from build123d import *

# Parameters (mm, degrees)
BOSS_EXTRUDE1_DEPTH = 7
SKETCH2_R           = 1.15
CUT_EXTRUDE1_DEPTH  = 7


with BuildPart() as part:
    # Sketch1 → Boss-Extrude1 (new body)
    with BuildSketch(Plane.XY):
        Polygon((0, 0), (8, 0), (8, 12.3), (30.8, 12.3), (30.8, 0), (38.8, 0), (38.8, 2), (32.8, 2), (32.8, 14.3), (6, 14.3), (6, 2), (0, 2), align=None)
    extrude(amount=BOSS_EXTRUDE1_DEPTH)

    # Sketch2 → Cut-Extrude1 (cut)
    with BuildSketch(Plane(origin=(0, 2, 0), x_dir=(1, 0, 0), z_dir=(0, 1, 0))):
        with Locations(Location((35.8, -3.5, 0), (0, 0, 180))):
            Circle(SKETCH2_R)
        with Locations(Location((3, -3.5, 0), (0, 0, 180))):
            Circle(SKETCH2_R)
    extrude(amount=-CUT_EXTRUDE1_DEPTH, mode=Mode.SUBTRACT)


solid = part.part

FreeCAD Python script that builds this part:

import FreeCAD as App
import Part
import Sketcher
Q = App.Units.Quantity


def add_polygon(sketch, points):
    """Adds a closed chain of lines whose ends are joined by coincident constraints."""
    first, n = sketch.GeometryCount, len(points)
    for a, b in zip(points, points[1:] + points[:1]):
        sketch.addGeometry(Part.LineSegment(App.Vector(*a, 0), App.Vector(*b, 0)), False)
    for i in range(n):
        sketch.addConstraint(Sketcher.Constraint("Coincident", first + i, 2, first + (i + 1) % n, 1))

doc = App.newDocument("Part")
body = doc.addObject("PartDesign::Body", "Body")

# Sketch on XY plane
sketch1 = doc.addObject("Sketcher::SketchObject", "Sketch")
body.addObject(sketch1)
sketch1.AttachmentSupport = (doc.XY_Plane, [""])
sketch1.MapMode = "FlatFace"
add_polygon(sketch1, [(0, 0), (8, 0), (8, 12.3), (30.8, 12.3), (30.8, 0), (38.8, 0), (38.8, 2), (32.8, 2), (32.8, 14.3), (6, 14.3), (6, 2), (0, 2)])  # lines 0-11
sketch1.addConstraint([
    Sketcher.Constraint("Horizontal", 0),
    Sketcher.Constraint("Vertical", 1),
    Sketcher.Constraint("Horizontal", 2),
    Sketcher.Constraint("Vertical", 3),
    Sketcher.Constraint("Horizontal", 4),
    Sketcher.Constraint("Vertical", 5),
    Sketcher.Constraint("Horizontal", 6),
    Sketcher.Constraint("Vertical", 7),
    Sketcher.Constraint("Horizontal", 8),
    Sketcher.Constraint("Vertical", 9),
    Sketcher.Constraint("Horizontal", 10),
    Sketcher.Constraint("Vertical", 11),
    Sketcher.Constraint("Coincident", 11, 2, -1, 1),
    Sketcher.Constraint("PointOnObject", 3, 2, -1),
    Sketcher.Constraint("Horizontal", 6, 2, 9, 2),
    Sketcher.Constraint("Equal", 0, 4),
    Sketcher.Constraint("Equal", 6, 10),
    Sketcher.Constraint("Equal", 3, 7),
    Sketcher.Constraint("DistanceX", 0, 1, 0, 2, Q("8 mm")),
    Sketcher.Constraint("DistanceX", 6, 2, 6, 1, Q("6 mm")),
    Sketcher.Constraint("DistanceY", 5, 1, 5, 2, Q("2 mm")),
    Sketcher.Constraint("DistanceX", 2, 1, 2, 2, Q("22.8 mm")),
    Sketcher.Constraint("DistanceY", 1, 1, 1, 2, Q("12.3 mm")),
])
pad1 = doc.addObject("PartDesign::Pad", "Pad")
body.addObject(pad1)
pad1.Profile = sketch1
pad1.Length = 7

# Sketch on XZ plane
sketch2 = doc.addObject("Sketcher::SketchObject", "Sketch001")
body.addObject(sketch2)
sketch2.AttachmentSupport = (doc.XZ_Plane, [""])
sketch2.MapMode = "FlatFace"
sketch2.AttachmentOffset = App.Placement(App.Vector(0, 0, -2), App.Rotation())
sketch2.addGeometry([
    Part.Circle(App.Vector(35.8, 3.5, 0), App.Vector(0, 0, 1), 1.1),
    Part.Circle(App.Vector(3, 3.5, 0), App.Vector(0, 0, 1), 1.1),
], False)
sketch2.addConstraint([
    Sketcher.Constraint("Equal", 0, 1),
    Sketcher.Constraint("Horizontal", 0, 3, 1, 3),
    Sketcher.Constraint("Diameter", 0, Q("2.3 mm")),
    Sketcher.Constraint("DistanceX", -1, 1, 1, 3, Q("3 mm")),
    Sketcher.Constraint("DistanceX", -1, 1, 0, 3, Q("35.8 mm")),
    Sketcher.Constraint("DistanceY", -1, 1, 0, 3, Q("3.5 mm")),
])
pocket1 = doc.addObject("PartDesign::Pocket", "Pocket")
body.addObject(pocket1)
pocket1.Profile = sketch2
pocket1.Length = 7
pocket1.Reversed = True

doc.recompute()
